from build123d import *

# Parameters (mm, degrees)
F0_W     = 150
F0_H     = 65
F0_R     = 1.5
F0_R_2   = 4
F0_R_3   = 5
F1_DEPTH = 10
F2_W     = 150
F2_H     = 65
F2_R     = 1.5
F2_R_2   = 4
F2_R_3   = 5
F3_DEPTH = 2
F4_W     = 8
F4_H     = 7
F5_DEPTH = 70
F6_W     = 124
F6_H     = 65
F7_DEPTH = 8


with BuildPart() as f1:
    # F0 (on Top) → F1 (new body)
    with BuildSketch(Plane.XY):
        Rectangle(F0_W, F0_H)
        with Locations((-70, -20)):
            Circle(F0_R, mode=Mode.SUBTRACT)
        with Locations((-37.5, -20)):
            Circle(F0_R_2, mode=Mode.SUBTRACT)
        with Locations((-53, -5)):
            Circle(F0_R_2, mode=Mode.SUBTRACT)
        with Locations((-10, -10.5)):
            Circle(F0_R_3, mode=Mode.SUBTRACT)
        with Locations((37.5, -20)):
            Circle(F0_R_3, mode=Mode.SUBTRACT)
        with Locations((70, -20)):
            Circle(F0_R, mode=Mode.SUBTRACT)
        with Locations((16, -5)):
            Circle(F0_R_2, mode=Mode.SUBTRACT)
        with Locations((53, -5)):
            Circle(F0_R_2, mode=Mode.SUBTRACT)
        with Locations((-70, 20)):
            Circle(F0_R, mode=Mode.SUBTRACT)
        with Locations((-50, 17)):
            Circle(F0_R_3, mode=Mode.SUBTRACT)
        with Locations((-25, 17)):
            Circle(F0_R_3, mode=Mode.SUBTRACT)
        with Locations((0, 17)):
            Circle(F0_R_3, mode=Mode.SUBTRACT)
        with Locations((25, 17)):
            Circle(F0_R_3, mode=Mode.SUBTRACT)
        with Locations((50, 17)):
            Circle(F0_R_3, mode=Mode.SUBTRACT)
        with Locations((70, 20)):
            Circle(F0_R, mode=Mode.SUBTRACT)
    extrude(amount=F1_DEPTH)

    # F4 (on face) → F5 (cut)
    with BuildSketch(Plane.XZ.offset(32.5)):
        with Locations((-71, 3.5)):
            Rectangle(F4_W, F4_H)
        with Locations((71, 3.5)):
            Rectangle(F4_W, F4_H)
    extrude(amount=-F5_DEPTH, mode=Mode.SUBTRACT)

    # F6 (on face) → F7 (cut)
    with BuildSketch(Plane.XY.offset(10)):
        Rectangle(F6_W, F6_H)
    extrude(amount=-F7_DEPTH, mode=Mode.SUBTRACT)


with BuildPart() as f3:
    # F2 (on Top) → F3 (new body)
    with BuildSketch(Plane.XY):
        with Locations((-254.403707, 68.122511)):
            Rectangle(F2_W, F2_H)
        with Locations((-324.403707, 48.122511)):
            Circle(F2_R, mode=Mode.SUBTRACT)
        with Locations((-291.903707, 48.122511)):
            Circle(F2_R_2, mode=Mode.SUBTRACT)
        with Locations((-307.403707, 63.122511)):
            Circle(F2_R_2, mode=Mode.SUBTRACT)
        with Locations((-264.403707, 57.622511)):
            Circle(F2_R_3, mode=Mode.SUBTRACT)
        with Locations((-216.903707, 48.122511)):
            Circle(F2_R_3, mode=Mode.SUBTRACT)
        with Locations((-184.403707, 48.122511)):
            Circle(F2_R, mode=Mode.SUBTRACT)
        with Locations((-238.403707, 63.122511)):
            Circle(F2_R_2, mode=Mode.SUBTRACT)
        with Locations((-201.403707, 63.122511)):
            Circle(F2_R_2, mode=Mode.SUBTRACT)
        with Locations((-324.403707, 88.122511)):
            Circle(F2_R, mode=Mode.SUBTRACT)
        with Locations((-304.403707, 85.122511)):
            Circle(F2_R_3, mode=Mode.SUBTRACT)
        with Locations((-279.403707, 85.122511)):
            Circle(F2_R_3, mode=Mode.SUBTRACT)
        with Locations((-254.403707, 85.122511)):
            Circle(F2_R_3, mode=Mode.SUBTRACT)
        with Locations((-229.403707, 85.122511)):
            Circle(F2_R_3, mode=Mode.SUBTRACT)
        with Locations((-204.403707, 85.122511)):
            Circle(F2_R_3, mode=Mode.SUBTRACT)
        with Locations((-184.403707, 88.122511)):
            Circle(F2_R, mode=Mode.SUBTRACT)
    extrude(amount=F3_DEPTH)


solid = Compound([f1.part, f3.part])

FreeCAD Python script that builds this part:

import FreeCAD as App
import Part
import Sketcher
from FreeCAD import Vector
Q = App.Units.Quantity

doc = App.newDocument("Part")
params = doc.addObject("Spreadsheet::Sheet", "Params")
for row, (alias, value) in enumerate([
    ("sketch1_diameter", "3 mm"),
    ("sketch1_diameter2", "8 mm"),
    ("sketch1_diameter3", "10 mm"),
    ("sketch1_width", "150 mm"),
    ("sketch1_height", "65 mm"),
    ("pad1_length", "10 mm"),
    ("sketch2_width", "8 mm"),
    ("sketch2_height", "7 mm"),
    ("pocket1_length", "70 mm"),
    ("sketch3_width", "124 mm"),
    ("sketch3_height", "65 mm"),
    ("pocket2_length", "8 mm"),
    ("sketch4_diameter", "3 mm"),
    ("sketch4_diameter2", "8 mm"),
    ("sketch4_diameter3", "10 mm"),
    ("sketch4_width", "150 mm"),
    ("sketch4_height", "65 mm"),
    ("pad2_length", "2 mm"),
], start=1):
    params.set(f"A{row}", alias)
    params.set(f"B{row}", "=" + value)
    params.setAlias(f"B{row}", alias)

body = doc.addObject("PartDesign::Body", "Body")

sketch1 = doc.addObject("Sketcher::SketchObject", "Sketch")
body.addObject(sketch1)
sketch1.AttachmentSupport = (doc.XY_Plane, [""])
sketch1.MapMode = "FlatFace"
sketch1.addGeometry([
    Part.LineSegment(Vector(-75, 32.5, 0), Vector(-75, -32.5, 0)),
    Part.LineSegment(Vector(-75, -32.5, 0), Vector(75, -32.5, 0)),
    Part.LineSegment(Vector(75, -32.5, 0), Vector(75, 32.5, 0)),
    Part.LineSegment(Vector(75, 32.5, 0), Vector(-75, 32.5, 0)),
    Part.Circle(Vector(-70, -20, 0), Vector(0, 0, 1), 1.5),
    Part.Circle(Vector(-37.5, -20, 0), Vector(0, 0, 1), 4),
    Part.Circle(Vector(-53, -5, 0), Vector(0, 0, 1), 4),
    Part.Circle(Vector(-10, -10.5, 0), Vector(0, 0, 1), 5),
    Part.Circle(Vector(37.5, -20, 0), Vector(0, 0, 1), 5),
    Part.Circle(Vector(70, -20, 0), Vector(0, 0, 1), 1.5),
    Part.Circle(Vector(16, -5, 0), Vector(0, 0, 1), 4),
    Part.Circle(Vector(53, -5, 0), Vector(0, 0, 1), 4),
    Part.Circle(Vector(-70, 20, 0), Vector(0, 0, 1), 1.5),
    Part.Circle(Vector(-50, 17, 0), Vector(0, 0, 1), 5),
    Part.Circle(Vector(-25, 17, 0), Vector(0, 0, 1), 5),
    Part.Circle(Vector(0, 17, 0), Vector(0, 0, 1), 5),
    Part.Circle(Vector(25, 17, 0), Vector(0, 0, 1), 5),
    Part.Circle(Vector(50, 17, 0), Vector(0, 0, 1), 5),
    Part.Circle(Vector(70, 20, 0), Vector(0, 0, 1), 1.5),
], False)
sketch1.addConstraint([
    Sketcher.Constraint("Coincident", 0, 2, 1, 1),
    Sketcher.Constraint("Coincident", 1, 2, 2, 1),
    Sketcher.Constraint("Coincident", 2, 2, 3, 1),
    Sketcher.Constraint("Coincident", 3, 2, 0, 1),
    Sketcher.Constraint("Vertical", 0),
    Sketcher.Constraint("Horizontal", 1),
    Sketcher.Constraint("Vertical", 2),
    Sketcher.Constraint("Horizontal", 3),
    Sketcher.Constraint("Equal", 5, 6),
    Sketcher.Constraint("Equal", 7, 8),
    Sketcher.Constraint("Equal", 4, 9),
    Sketcher.Constraint("Equal", 6, 10),
    Sketcher.Constraint("Equal", 10, 11),
    Sketcher.Constraint("Equal", 9, 12),
    Sketcher.Constraint("Equal", 8, 13),
    Sketcher.Constraint("Equal", 13, 14),
    Sketcher.Constraint("Equal", 14, 15),
    Sketcher.Constraint("Equal", 15, 16),
    Sketcher.Constraint("Equal", 16, 17),
    Sketcher.Constraint("Equal", 12, 18),
    Sketcher.Constraint("Symmetric", 9, 3, 12, 3, -1, 1),
    Sketcher.Constraint("Symmetric", 4, 3, 18, 3, -1, 1),
    Sketcher.Constraint("Symmetric", 0, 2, 2, 2, -1, 1),
    Sketcher.Constraint("Symmetric", 5, 3, 8, 3, -2),
    Sketcher.Constraint("Symmetric", 4, 3, 9, 3, -2),
    Sketcher.Constraint("Symmetric", 6, 3, 11, 3, -2),
    Sketcher.Constraint("Symmetric", 14, 3, 16, 3, -2),
    Sketcher.Constraint("Symmetric", 13, 3, 17, 3, -2),
    Sketcher.Constraint("PointOnObject", 15, 3, -2),
    Sketcher.Constraint("Horizontal", 4, 3, 5, 3),
    Sketcher.Constraint("Horizontal", 6, 3, 10, 3),
    Sketcher.Constraint("Horizontal", 13, 3, 14, 3),
    Sketcher.Constraint("Horizontal", 14, 3, 15, 3),
    Sketcher.Constraint("Diameter", 4, Q("3 mm")),
    Sketcher.Constraint("Diameter", 5, Q("8 mm")),
    Sketcher.Constraint("Diameter", 7, Q("10 mm")),
    Sketcher.Constraint("DistanceX", 1, 1, 1, 2, Q("150 mm")),
    Sketcher.Constraint("DistanceY", 0, 2, 0, 1, Q("65 mm")),
    Sketcher.Constraint("DistanceX", 4, 3, -1, 1, Q("70 mm")),
    Sketcher.Constraint("DistanceY", 4, 3, -1, 1, Q("20 mm")),
    Sketcher.Constraint("DistanceX", 6, 3, -1, 1, Q("53 mm")),
    Sketcher.Constraint("DistanceY", 6, 3, -1, 1, Q("5 mm")),
    Sketcher.Constraint("DistanceX", 7, 3, -1, 1, Q("10 mm")),
    Sketcher.Constraint("DistanceX", -1, 1, 10, 3, Q("16 mm")),
    Sketcher.Constraint("DistanceX", 13, 3, -1, 1, Q("50 mm")),
    Sketcher.Constraint("DistanceY", -1, 1, 13, 3, Q("17 mm")),
    Sketcher.Constraint("DistanceX", 14, 3, -1, 1, Q("25 mm")),
    Sketcher.Constraint("DistanceX", 5, 3, 8, 3, Q("75 mm")),
    Sketcher.Constraint("DistanceY", 7, 3, -1, 1, Q("10.5 mm")),
])
sketch1.setExpression("Constraints[33]", "Params.sketch1_diameter")
sketch1.setExpression("Constraints[34]", "Params.sketch1_diameter2")
sketch1.setExpression("Constraints[35]", "Params.sketch1_diameter3")
sketch1.setExpression("Constraints[36]", "Params.sketch1_width")
sketch1.setExpression("Constraints[37]", "Params.sketch1_height")
pad1 = doc.addObject("PartDesign::Pad", "Pad")
body.addObject(pad1)
pad1.Profile = sketch1
pad1.setExpression("Length", "Params.pad1_length")

sketch2 = doc.addObject("Sketcher::SketchObject", "Sketch001")
body.addObject(sketch2)
sketch2.AttachmentSupport = (doc.XZ_Plane, [""])
sketch2.MapMode = "FlatFace"
sketch2.AttachmentOffset = App.Placement(Vector(0, 0, 32.5), App.Rotation())
sketch2.addGeometry([
    Part.LineSegment(Vector(-75, 7, 0), Vector(-75, 0, 0)),
    Part.LineSegment(Vector(-75, 0, 0), Vector(-67, 0, 0)),
    Part.LineSegment(Vector(-67, 0, 0), Vector(-67, 7, 0)),
    Part.LineSegment(Vector(-67, 7, 0), Vector(-75, 7, 0)),
    Part.LineSegment(Vector(67, 7, 0), Vector(67, 0, 0)),
    Part.LineSegment(Vector(67, 0, 0), Vector(75, 0, 0)),
    Part.LineSegment(Vector(75, 0, 0), Vector(75, 7, 0)),
    Part.LineSegment(Vector(75, 7, 0), Vector(67, 7, 0)),
], False)
sketch2.addConstraint([
    Sketcher.Constraint("Coincident", 0, 2, 1, 1),
    Sketcher.Constraint("Coincident", 1, 2, 2, 1),
    Sketcher.Constraint("Coincident", 2, 2, 3, 1),
    Sketcher.Constraint("Coincident", 3, 2, 0, 1),
    Sketcher.Constraint("Coincident", 4, 2, 5, 1),
    Sketcher.Constraint("Coincident", 5, 2, 6, 1),
    Sketcher.Constraint("Coincident", 6, 2, 7, 1),
    Sketcher.Constraint("Coincident", 7, 2, 4, 1),
    Sketcher.Constraint("Vertical", 0),
    Sketcher.Constraint("Horizontal", 1),
    Sketcher.Constraint("Vertical", 2),
    Sketcher.Constraint("Horizontal", 3),
    Sketcher.Constraint("Vertical", 4),
    Sketcher.Constraint("Horizontal", 5),
    Sketcher.Constraint("Vertical", 6),
    Sketcher.Constraint("Horizontal", 7),
    Sketcher.Constraint("Symmetric", 1, 2, 4, 2, -1, 1),
    Sketcher.Constraint("Symmetric", 0, 2, 5, 2, -2),
    Sketcher.Constraint("Horizontal", 3, 2, 6, 2),
    Sketcher.Constraint("DistanceX", 1, 1, 1, 2, Q("8 mm")),
    Sketcher.Constraint("DistanceY", 0, 2, 0, 1, Q("7 mm")),
    Sketcher.Constraint("DistanceX", 0, 2, -1, 1, Q("75 mm")),
])
sketch2.setExpression("Constraints[19]", "Params.sketch2_width")
sketch2.setExpression("Constraints[20]", "Params.sketch2_height")
pocket1 = doc.addObject("PartDesign::Pocket", "Pocket")
body.addObject(pocket1)
pocket1.Profile = sketch2
pocket1.setExpression("Length", "Params.pocket1_length")

sketch3 = doc.addObject("Sketcher::SketchObject", "Sketch002")
body.addObject(sketch3)
sketch3.AttachmentSupport = (doc.XY_Plane, [""])
sketch3.MapMode = "FlatFace"
sketch3.AttachmentOffset = App.Placement(Vector(0, 0, 10), App.Rotation())
sketch3.addGeometry([
    Part.LineSegment(Vector(-62, 32.5, 0), Vector(-62, -32.5, 0)),
    Part.LineSegment(Vector(-62, -32.5, 0), Vector(62, -32.5, 0)),
    Part.LineSegment(Vector(62, -32.5, 0), Vector(62, 32.5, 0)),
    Part.LineSegment(Vector(62, 32.5, 0), Vector(-62, 32.5, 0)),
], False)
sketch3.addConstraint([
    Sketcher.Constraint("Coincident", 0, 2, 1, 1),
    Sketcher.Constraint("Coincident", 1, 2, 2, 1),
    Sketcher.Constraint("Coincident", 2, 2, 3, 1),
    Sketcher.Constraint("Coincident", 3, 2, 0, 1),
    Sketcher.Constraint("Vertical", 0),
    Sketcher.Constraint("Horizontal", 1),
    Sketcher.Constraint("Vertical", 2),
    Sketcher.Constraint("Horizontal", 3),
    Sketcher.Constraint("Symmetric", 0, 2, 2, 2, -1, 1),
    Sketcher.Constraint("DistanceX", 1, 1, 1, 2, Q("124 mm")),
    Sketcher.Constraint("DistanceY", 0, 2, 0, 1, Q("65 mm")),
])
sketch3.setExpression("Constraints[9]", "Params.sketch3_width")
sketch3.setExpression("Constraints[10]", "Params.sketch3_height")
pocket2 = doc.addObject("PartDesign::Pocket", "Pocket001")
body.addObject(pocket2)
pocket2.Profile = sketch3
pocket2.setExpression("Length", "Params.pocket2_length")
body2 = doc.addObject("PartDesign::Body", "Body001")

sketch4 = doc.addObject("Sketcher::SketchObject", "Sketch003")
body2.addObject(sketch4)
sketch4.AttachmentSupport = (doc.getObject("XY_Plane001"), [""])
sketch4.MapMode = "FlatFace"
sketch4.addGeometry([
    Part.LineSegment(Vector(-329.403707, 100.622511, 0), Vector(-329.403707, 35.622511, 0)),
    Part.LineSegment(Vector(-329.403707, 35.622511, 0), Vector(-179.403707, 35.622511, 0)),
    Part.LineSegment(Vector(-179.403707, 35.622511, 0), Vector(-179.403707, 100.622511, 0)),
    Part.LineSegment(Vector(-179.403707, 100.622511, 0), Vector(-329.403707, 100.622511, 0)),
    Part.Circle(Vector(-324.403707, 48.122511, 0), Vector(0, 0, 1), 1.5),
    Part.Circle(Vector(-291.903707, 48.122511, 0), Vector(0, 0, 1), 4),
    Part.Circle(Vector(-307.403707, 63.122511, 0), Vector(0, 0, 1), 4),
    Part.Circle(Vector(-264.403707, 57.622511, 0), Vector(0, 0, 1), 5),
    Part.Circle(Vector(-216.903707, 48.122511, 0), Vector(0, 0, 1), 5),
    Part.Circle(Vector(-184.403707, 48.122511, 0), Vector(0, 0, 1), 1.5),
    Part.Circle(Vector(-238.403707, 63.122511, 0), Vector(0, 0, 1), 4),
    Part.Circle(Vector(-201.403707, 63.122511, 0), Vector(0, 0, 1), 4),
    Part.Circle(Vector(-324.403707, 88.122511, 0), Vector(0, 0, 1), 1.5),
    Part.Circle(Vector(-304.403707, 85.122511, 0), Vector(0, 0, 1), 5),
    Part.Circle(Vector(-279.403707, 85.122511, 0), Vector(0, 0, 1), 5),
    Part.Circle(Vector(-254.403707, 85.122511, 0), Vector(0, 0, 1), 5),
    Part.Circle(Vector(-229.403707, 85.122511, 0), Vector(0, 0, 1), 5),
    Part.Circle(Vector(-204.403707, 85.122511, 0), Vector(0, 0, 1), 5),
    Part.Circle(Vector(-184.403707, 88.122511, 0), Vector(0, 0, 1), 1.5),
], False)
sketch4.addConstraint([
    Sketcher.Constraint("Coincident", 0, 2, 1, 1),
    Sketcher.Constraint("Coincident", 1, 2, 2, 1),
    Sketcher.Constraint("Coincident", 2, 2, 3, 1),
    Sketcher.Constraint("Coincident", 3, 2, 0, 1),
    Sketcher.Constraint("Vertical", 0),
    Sketcher.Constraint("Horizontal", 1),
    Sketcher.Constraint("Vertical", 2),
    Sketcher.Constraint("Horizontal", 3),
    Sketcher.Constraint("Equal", 5, 6),
    Sketcher.Constraint("Equal", 7, 8),
    Sketcher.Constraint("Equal", 4, 9),
    Sketcher.Constraint("Equal", 6, 10),
    Sketcher.Constraint("Equal", 10, 11),
    Sketcher.Constraint("Equal", 9, 12),
    Sketcher.Constraint("Equal", 8, 13),
    Sketcher.Constraint("Equal", 13, 14),
    Sketcher.Constraint("Equal", 14, 15),
    Sketcher.Constraint("Equal", 15, 16),
    Sketcher.Constraint("Equal", 16, 17),
    Sketcher.Constraint("Equal", 12, 18),
    Sketcher.Constraint("Horizontal", 4, 3, 5, 3),
    Sketcher.Constraint("Horizontal", 5, 3, 8, 3),
    Sketcher.Constraint("Horizontal", 8, 3, 9, 3),
    Sketcher.Constraint("Horizontal", 6, 3, 10, 3),
    Sketcher.Constraint("Horizontal", 10, 3, 11, 3),
    Sketcher.Constraint("Horizontal", 13, 3, 14, 3),
    Sketcher.Constraint("Horizontal", 14, 3, 15, 3),
    Sketcher.Constraint("Horizontal", 15, 3, 16, 3),
    Sketcher.Constraint("Horizontal", 16, 3, 17, 3),
    Sketcher.Constraint("Horizontal", 12, 3, 18, 3),
    Sketcher.Constraint("Vertical", 4, 3, 12, 3),
    Sketcher.Constraint("Vertical", 9, 3, 18, 3),
    Sketcher.Constraint("Diameter", 4, Q("3 mm")),
    Sketcher.Constraint("Diameter", 5, Q("8 mm")),
    Sketcher.Constraint("Diameter", 7, Q("10 mm")),
    Sketcher.Constraint("DistanceX", 1, 1, 1, 2, Q("150 mm")),
    Sketcher.Constraint("DistanceY", 0, 2, 0, 1, Q("65 mm")),
    Sketcher.Constraint("DistanceY", 5, 3, 6, 3, Q("15 mm")),
    Sketcher.Constraint("DistanceX", 4, 3, 6, 3, Q("17 mm")),
    Sketcher.Constraint("DistanceX", 6, 3, 7, 3, Q("43 mm")),
    Sketcher.Constraint("DistanceX", 5, 3, 8, 3, Q("75 mm")),
    Sketcher.Constraint("DistanceX", 7, 3, 9, 3, Q("80 mm")),
    Sketcher.Constraint("DistanceX", 7, 3, 10, 3, Q("26 mm")),
    Sketcher.Constraint("DistanceX", 11, 3, 9, 3, Q("17 mm")),
    Sketcher.Constraint("DistanceY", 6, 3, 12, 3, Q("25 mm")),
    Sketcher.Constraint("DistanceX", 12, 3, 13, 3, Q("20 mm")),
    Sketcher.Constraint("DistanceY", 13, 3, 12, 3, Q("3 mm")),
    Sketcher.Constraint("DistanceX", 13, 3, 14, 3, Q("25 mm")),
    Sketcher.Constraint("DistanceX", 14, 3, 15, 3, Q("25 mm")),
    Sketcher.Constraint("DistanceX", 10, 3, 16, 3, Q("9 mm")),
    Sketcher.Constraint("DistanceX", 17, 3, 11, 3, Q("3 mm")),
    Sketcher.Constraint("DistanceX", 0, 2, 4, 3, Q("5 mm")),
    Sketcher.Constraint("DistanceX", 4, 3, 5, 3, Q("32.5 mm")),
    Sketcher.Constraint("DistanceY", 5, 3, 7, 3, Q("9.5 mm")),
    Sketcher.Constraint("DistanceY", 0, 2, 4, 3, Q("12.5 mm")),
    Sketcher.Constraint("DistanceY", -1, 1, 4, 3, Q("48.122511 mm")),
    Sketcher.Constraint("DistanceX", 4, 3, -1, 1, Q("324.403707 mm")),
])
sketch4.setExpression("Constraints[32]", "Params.sketch4_diameter")
sketch4.setExpression("Constraints[33]", "Params.sketch4_diameter2")
sketch4.setExpression("Constraints[34]", "Params.sketch4_diameter3")
sketch4.setExpression("Constraints[35]", "Params.sketch4_width")
sketch4.setExpression("Constraints[36]", "Params.sketch4_height")
pad2 = doc.addObject("PartDesign::Pad", "Pad001")
body2.addObject(pad2)
pad2.Profile = sketch4
pad2.setExpression("Length", "Params.pad2_length")

doc.recompute()
